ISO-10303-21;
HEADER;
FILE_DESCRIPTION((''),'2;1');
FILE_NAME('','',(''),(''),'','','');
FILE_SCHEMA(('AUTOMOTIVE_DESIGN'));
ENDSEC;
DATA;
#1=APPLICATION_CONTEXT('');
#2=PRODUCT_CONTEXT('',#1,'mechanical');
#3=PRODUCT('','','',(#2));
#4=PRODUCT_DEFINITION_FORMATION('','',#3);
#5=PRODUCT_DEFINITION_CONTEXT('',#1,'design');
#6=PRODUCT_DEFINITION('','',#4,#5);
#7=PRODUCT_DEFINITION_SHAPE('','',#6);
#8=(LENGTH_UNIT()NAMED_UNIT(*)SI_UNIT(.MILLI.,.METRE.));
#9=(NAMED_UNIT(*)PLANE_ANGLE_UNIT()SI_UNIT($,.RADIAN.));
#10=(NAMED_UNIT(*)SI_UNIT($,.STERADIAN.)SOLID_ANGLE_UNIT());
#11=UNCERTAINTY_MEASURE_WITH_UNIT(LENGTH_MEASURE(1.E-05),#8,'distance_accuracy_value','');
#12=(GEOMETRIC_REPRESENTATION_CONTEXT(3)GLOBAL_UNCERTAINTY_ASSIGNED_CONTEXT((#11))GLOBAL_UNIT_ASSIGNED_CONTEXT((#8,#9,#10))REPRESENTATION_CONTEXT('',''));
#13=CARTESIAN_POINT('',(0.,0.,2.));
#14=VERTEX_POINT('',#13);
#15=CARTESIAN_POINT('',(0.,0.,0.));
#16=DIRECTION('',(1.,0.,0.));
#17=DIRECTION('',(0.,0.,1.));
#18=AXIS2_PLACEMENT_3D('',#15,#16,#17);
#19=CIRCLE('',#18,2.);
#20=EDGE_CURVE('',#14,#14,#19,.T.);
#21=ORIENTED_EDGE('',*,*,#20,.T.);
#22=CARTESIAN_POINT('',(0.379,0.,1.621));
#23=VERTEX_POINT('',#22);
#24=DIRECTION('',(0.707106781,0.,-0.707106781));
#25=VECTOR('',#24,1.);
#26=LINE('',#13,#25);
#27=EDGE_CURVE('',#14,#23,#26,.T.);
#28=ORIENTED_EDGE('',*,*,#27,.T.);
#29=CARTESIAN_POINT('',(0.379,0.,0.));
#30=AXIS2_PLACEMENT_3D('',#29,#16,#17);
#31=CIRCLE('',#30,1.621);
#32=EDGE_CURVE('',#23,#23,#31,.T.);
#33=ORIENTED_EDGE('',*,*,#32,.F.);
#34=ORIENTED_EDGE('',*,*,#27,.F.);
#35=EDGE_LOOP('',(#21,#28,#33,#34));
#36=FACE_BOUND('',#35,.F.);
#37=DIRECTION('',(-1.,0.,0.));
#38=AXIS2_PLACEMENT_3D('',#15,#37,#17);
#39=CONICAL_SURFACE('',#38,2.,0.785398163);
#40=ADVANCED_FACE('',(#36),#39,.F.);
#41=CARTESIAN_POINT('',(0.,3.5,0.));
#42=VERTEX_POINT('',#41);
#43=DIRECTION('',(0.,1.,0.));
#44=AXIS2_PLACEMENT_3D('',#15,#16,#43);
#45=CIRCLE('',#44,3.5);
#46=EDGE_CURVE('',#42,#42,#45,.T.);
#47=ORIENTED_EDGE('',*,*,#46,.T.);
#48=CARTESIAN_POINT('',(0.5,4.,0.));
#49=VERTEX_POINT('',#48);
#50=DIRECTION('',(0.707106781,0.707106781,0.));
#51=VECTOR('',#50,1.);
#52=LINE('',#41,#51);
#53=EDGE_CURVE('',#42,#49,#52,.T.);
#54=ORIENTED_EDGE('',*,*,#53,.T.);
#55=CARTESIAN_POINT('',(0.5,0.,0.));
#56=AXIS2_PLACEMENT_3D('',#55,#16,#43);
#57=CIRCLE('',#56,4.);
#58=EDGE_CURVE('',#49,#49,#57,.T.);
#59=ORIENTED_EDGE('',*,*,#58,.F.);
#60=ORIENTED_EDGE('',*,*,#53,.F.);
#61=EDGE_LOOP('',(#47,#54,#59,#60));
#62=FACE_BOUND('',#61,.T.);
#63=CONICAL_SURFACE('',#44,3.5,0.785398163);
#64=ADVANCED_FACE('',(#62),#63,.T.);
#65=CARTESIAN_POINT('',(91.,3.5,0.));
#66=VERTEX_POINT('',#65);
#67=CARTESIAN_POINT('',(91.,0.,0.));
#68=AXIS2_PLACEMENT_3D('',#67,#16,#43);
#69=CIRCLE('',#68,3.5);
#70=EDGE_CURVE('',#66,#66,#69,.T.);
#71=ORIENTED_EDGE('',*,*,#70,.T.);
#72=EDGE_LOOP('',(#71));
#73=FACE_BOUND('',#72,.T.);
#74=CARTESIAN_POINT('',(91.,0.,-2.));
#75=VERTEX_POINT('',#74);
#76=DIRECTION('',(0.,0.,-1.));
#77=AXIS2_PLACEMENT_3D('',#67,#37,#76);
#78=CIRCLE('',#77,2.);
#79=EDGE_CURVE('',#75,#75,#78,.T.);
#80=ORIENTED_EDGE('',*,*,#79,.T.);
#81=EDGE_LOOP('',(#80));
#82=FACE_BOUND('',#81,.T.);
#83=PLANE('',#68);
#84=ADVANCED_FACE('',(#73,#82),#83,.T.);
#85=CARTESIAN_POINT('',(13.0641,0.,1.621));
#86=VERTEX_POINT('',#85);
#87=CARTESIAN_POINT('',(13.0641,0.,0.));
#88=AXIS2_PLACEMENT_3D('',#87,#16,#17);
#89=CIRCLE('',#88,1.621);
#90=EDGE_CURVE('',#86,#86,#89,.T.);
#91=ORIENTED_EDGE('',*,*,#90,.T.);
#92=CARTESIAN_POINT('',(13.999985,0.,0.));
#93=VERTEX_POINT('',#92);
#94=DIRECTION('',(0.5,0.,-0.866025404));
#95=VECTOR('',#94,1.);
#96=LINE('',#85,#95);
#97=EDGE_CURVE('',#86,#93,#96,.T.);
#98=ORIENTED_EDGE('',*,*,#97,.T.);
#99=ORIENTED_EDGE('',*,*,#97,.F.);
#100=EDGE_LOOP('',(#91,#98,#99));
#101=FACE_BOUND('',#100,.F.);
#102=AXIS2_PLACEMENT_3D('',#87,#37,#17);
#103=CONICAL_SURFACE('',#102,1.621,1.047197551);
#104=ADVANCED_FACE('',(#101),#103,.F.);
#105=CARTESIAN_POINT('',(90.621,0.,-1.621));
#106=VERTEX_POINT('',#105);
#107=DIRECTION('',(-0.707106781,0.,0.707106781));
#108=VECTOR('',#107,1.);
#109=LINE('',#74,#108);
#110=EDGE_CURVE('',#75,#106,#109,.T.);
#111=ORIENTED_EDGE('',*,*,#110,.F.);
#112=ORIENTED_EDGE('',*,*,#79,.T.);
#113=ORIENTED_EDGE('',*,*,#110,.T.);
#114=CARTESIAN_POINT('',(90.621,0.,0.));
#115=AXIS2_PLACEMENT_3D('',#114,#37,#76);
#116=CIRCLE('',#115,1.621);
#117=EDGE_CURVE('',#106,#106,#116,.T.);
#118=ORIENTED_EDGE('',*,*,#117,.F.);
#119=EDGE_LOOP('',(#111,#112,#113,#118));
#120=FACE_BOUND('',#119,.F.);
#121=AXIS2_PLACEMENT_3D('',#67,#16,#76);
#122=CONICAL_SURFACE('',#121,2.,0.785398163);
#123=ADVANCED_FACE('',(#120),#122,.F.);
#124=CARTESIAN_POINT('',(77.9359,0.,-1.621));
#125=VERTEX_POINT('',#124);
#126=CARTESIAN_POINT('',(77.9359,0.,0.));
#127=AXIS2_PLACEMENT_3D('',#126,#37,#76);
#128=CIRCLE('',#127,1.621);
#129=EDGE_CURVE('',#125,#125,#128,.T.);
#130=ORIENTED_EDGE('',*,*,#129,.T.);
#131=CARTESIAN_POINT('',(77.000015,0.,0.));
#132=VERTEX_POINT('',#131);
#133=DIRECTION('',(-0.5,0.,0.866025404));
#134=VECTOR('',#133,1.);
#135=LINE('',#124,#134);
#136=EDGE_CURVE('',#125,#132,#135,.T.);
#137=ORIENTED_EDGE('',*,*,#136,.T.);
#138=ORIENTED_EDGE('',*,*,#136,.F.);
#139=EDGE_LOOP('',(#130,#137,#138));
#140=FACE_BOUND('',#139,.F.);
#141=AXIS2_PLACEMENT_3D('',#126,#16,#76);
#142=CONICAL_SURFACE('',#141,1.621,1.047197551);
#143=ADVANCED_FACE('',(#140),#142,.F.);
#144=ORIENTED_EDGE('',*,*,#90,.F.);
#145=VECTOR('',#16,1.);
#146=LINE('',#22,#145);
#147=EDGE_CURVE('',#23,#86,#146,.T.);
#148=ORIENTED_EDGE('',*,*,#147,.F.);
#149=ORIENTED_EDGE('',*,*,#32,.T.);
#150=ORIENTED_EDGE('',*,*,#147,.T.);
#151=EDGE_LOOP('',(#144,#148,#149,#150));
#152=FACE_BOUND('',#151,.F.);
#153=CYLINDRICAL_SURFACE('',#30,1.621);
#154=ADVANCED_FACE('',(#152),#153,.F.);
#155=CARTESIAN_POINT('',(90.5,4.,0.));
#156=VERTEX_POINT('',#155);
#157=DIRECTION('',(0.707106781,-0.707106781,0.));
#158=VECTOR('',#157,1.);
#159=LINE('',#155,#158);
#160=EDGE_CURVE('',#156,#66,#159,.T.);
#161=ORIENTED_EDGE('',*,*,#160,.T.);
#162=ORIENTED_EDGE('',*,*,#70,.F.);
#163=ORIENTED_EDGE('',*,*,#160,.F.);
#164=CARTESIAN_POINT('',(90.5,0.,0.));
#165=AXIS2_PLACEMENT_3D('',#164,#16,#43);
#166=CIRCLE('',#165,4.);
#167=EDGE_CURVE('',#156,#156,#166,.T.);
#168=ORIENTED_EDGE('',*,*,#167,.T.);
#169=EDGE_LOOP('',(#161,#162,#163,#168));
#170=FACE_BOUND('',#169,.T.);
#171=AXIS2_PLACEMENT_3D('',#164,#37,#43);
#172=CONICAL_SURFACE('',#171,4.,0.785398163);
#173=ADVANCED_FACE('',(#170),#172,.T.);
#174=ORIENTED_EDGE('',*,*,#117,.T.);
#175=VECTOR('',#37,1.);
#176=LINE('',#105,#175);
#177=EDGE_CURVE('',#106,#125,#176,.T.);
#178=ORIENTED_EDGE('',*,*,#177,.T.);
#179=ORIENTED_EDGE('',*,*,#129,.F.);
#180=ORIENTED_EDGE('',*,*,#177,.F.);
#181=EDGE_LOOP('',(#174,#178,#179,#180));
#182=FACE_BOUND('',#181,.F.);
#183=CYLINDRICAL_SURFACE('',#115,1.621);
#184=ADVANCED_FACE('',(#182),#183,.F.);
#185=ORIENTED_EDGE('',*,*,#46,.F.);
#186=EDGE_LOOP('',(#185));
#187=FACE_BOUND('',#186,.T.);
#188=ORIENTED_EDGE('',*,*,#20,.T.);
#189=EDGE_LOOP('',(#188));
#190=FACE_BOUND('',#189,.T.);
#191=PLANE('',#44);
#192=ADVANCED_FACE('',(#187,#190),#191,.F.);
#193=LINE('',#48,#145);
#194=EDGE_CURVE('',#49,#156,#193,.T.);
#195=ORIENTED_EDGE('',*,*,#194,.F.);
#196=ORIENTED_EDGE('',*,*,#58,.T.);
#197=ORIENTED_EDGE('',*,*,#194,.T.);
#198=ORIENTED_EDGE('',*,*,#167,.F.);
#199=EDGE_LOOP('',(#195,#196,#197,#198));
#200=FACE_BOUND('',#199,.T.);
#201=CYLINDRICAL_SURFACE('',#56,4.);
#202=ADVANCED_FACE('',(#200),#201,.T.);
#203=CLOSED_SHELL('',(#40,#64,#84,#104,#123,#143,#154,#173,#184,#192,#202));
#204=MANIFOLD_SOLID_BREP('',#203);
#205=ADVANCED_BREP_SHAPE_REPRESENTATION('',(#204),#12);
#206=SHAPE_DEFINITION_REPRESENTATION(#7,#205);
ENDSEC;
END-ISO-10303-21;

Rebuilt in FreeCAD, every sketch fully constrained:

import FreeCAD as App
import Part
import Sketcher
Q = App.Units.Quantity


def add_polygon(sketch, points):
    """Adds a closed chain of lines whose ends are joined by coincident constraints."""
    first, n = sketch.GeometryCount, len(points)
    for a, b in zip(points, points[1:] + points[:1]):
        sketch.addGeometry(Part.LineSegment(App.Vector(*a, 0), App.Vector(*b, 0)), False)
    for i in range(n):
        sketch.addConstraint(Sketcher.Constraint("Coincident", first + i, 2, first + (i + 1) % n, 1))

doc = App.newDocument("Part")
params = doc.addObject("Spreadsheet::Sheet", "Params")
for row, (alias, value) in enumerate([
    ("sketch1_width", "91 mm"),
    ("sketch1_width2", "90 mm"),
    ("sketch1_height", "3.5 mm"),
    ("revolution_angle", "360 deg"),
    ("hole_diameter", "3.242 mm"),
    ("hole_depth", "13.0641 mm"),
    ("hole_csink_diameter", "4 mm"),
    ("hole2_diameter", "3.242 mm"),
    ("hole2_depth", "13.0641 mm"),
    ("hole2_csink_diameter", "4 mm"),
], start=1):
    params.set(f"A{row}", alias)
    params.set(f"B{row}", "=" + value)
    params.setAlias(f"B{row}", alias)

body = doc.addObject("PartDesign::Body", "Body")

sketch1 = doc.addObject("Sketcher::SketchObject", "Sketch")
body.addObject(sketch1)
sketch1.AttachmentSupport = (doc.XY_Plane, [""])
sketch1.MapMode = "FlatFace"
add_polygon(sketch1, [(0, 0), (91, 0), (91, 3.5), (90.5, 4), (0.5, 4), (0, 3.5)])
sketch1.addConstraint(Sketcher.Constraint("Horizontal", 0))
sketch1.addConstraint(Sketcher.Constraint("Vertical", 1))
sketch1.addConstraint(Sketcher.Constraint("Horizontal", 3))
sketch1.addConstraint(Sketcher.Constraint("Vertical", 5))
sketch1.addConstraint(Sketcher.Constraint("Coincident", 5, 2, -1, 1))
sketch1.addConstraint(Sketcher.Constraint("Perpendicular", 2, 4))
sketch1.addConstraint(Sketcher.Constraint("Horizontal", 1, 2, 4, 2))
sketch1.addConstraint(Sketcher.Constraint("Equal", 2, 4))
sketch1.addConstraint(Sketcher.Constraint("DistanceX", 0, 1, 0, 2, Q("91 mm")))
sketch1.addConstraint(Sketcher.Constraint("DistanceX", 3, 2, 3, 1, Q("90 mm")))
sketch1.addConstraint(Sketcher.Constraint("DistanceY", 1, 1, 1, 2, Q("3.5 mm")))
sketch1.setExpression("Constraints[14]", "Params.sketch1_width")
sketch1.setExpression("Constraints[15]", "Params.sketch1_width2")
sketch1.setExpression("Constraints[16]", "Params.sketch1_height")
revolution = doc.addObject("PartDesign::Revolution", "Revolution")
body.addObject(revolution)
revolution.Profile = sketch1
revolution.ReferenceAxis = (sketch1, ["H_Axis"])
revolution.setExpression("Angle", "Params.revolution_angle")

sketch2 = doc.addObject("Sketcher::SketchObject", "Sketch001")
body.addObject(sketch2)
sketch2.AttachmentSupport = (doc.YZ_Plane, [""])
sketch2.MapMode = "FlatFace"
sketch2.addGeometry(Part.Circle(App.Vector(0, 0, 0), App.Vector(0, 0, 1), 1.6), False)
sketch2.addConstraint(Sketcher.Constraint("Coincident", 0, 3, -1, 1))
sketch2.addConstraint(Sketcher.Constraint("Diameter", 0, Q("3.242 mm")))
doc.recompute()
hole = doc.addObject("PartDesign::Hole", "Hole")
body.addObject(hole)
hole.Profile = sketch2
hole.ThreadType = "None"
hole.setExpression("Diameter", "Params.hole_diameter")
hole.DepthType = "Dimension"
hole.setExpression("Depth", "Params.hole_depth")
hole.DrillPoint = "Angled"
hole.DrillPointAngle = 120
hole.HoleCutType = "Countersink"
hole.setExpression("HoleCutDiameter", "Params.hole_csink_diameter")
hole.HoleCutCountersinkAngle = 90
hole.Reversed = True

sketch3 = doc.addObject("Sketcher::SketchObject", "Sketch002")
body.addObject(sketch3)
sketch3.AttachmentSupport = (doc.YZ_Plane, [""])
sketch3.MapMode = "FlatFace"
sketch3.AttachmentOffset = App.Placement(App.Vector(0, 0, 91), App.Rotation())
sketch3.addGeometry(Part.Circle(App.Vector(0, 0, 0), App.Vector(0, 0, 1), 1.6), False)
sketch3.addConstraint(Sketcher.Constraint("Coincident", 0, 3, -1, 1))
sketch3.addConstraint(Sketcher.Constraint("Diameter", 0, Q("3.242 mm")))
doc.recompute()
hole2 = doc.addObject("PartDesign::Hole", "Hole001")
body.addObject(hole2)
hole2.Profile = sketch3
hole2.ThreadType = "None"
hole2.setExpression("Diameter", "Params.hole2_diameter")
hole2.DepthType = "Dimension"
hole2.setExpression("Depth", "Params.hole2_depth")
hole2.DrillPoint = "Angled"
hole2.DrillPointAngle = 120
hole2.HoleCutType = "Countersink"
hole2.setExpression("HoleCutDiameter", "Params.hole2_csink_diameter")
hole2.HoleCutCountersinkAngle = 90

doc.recompute()
